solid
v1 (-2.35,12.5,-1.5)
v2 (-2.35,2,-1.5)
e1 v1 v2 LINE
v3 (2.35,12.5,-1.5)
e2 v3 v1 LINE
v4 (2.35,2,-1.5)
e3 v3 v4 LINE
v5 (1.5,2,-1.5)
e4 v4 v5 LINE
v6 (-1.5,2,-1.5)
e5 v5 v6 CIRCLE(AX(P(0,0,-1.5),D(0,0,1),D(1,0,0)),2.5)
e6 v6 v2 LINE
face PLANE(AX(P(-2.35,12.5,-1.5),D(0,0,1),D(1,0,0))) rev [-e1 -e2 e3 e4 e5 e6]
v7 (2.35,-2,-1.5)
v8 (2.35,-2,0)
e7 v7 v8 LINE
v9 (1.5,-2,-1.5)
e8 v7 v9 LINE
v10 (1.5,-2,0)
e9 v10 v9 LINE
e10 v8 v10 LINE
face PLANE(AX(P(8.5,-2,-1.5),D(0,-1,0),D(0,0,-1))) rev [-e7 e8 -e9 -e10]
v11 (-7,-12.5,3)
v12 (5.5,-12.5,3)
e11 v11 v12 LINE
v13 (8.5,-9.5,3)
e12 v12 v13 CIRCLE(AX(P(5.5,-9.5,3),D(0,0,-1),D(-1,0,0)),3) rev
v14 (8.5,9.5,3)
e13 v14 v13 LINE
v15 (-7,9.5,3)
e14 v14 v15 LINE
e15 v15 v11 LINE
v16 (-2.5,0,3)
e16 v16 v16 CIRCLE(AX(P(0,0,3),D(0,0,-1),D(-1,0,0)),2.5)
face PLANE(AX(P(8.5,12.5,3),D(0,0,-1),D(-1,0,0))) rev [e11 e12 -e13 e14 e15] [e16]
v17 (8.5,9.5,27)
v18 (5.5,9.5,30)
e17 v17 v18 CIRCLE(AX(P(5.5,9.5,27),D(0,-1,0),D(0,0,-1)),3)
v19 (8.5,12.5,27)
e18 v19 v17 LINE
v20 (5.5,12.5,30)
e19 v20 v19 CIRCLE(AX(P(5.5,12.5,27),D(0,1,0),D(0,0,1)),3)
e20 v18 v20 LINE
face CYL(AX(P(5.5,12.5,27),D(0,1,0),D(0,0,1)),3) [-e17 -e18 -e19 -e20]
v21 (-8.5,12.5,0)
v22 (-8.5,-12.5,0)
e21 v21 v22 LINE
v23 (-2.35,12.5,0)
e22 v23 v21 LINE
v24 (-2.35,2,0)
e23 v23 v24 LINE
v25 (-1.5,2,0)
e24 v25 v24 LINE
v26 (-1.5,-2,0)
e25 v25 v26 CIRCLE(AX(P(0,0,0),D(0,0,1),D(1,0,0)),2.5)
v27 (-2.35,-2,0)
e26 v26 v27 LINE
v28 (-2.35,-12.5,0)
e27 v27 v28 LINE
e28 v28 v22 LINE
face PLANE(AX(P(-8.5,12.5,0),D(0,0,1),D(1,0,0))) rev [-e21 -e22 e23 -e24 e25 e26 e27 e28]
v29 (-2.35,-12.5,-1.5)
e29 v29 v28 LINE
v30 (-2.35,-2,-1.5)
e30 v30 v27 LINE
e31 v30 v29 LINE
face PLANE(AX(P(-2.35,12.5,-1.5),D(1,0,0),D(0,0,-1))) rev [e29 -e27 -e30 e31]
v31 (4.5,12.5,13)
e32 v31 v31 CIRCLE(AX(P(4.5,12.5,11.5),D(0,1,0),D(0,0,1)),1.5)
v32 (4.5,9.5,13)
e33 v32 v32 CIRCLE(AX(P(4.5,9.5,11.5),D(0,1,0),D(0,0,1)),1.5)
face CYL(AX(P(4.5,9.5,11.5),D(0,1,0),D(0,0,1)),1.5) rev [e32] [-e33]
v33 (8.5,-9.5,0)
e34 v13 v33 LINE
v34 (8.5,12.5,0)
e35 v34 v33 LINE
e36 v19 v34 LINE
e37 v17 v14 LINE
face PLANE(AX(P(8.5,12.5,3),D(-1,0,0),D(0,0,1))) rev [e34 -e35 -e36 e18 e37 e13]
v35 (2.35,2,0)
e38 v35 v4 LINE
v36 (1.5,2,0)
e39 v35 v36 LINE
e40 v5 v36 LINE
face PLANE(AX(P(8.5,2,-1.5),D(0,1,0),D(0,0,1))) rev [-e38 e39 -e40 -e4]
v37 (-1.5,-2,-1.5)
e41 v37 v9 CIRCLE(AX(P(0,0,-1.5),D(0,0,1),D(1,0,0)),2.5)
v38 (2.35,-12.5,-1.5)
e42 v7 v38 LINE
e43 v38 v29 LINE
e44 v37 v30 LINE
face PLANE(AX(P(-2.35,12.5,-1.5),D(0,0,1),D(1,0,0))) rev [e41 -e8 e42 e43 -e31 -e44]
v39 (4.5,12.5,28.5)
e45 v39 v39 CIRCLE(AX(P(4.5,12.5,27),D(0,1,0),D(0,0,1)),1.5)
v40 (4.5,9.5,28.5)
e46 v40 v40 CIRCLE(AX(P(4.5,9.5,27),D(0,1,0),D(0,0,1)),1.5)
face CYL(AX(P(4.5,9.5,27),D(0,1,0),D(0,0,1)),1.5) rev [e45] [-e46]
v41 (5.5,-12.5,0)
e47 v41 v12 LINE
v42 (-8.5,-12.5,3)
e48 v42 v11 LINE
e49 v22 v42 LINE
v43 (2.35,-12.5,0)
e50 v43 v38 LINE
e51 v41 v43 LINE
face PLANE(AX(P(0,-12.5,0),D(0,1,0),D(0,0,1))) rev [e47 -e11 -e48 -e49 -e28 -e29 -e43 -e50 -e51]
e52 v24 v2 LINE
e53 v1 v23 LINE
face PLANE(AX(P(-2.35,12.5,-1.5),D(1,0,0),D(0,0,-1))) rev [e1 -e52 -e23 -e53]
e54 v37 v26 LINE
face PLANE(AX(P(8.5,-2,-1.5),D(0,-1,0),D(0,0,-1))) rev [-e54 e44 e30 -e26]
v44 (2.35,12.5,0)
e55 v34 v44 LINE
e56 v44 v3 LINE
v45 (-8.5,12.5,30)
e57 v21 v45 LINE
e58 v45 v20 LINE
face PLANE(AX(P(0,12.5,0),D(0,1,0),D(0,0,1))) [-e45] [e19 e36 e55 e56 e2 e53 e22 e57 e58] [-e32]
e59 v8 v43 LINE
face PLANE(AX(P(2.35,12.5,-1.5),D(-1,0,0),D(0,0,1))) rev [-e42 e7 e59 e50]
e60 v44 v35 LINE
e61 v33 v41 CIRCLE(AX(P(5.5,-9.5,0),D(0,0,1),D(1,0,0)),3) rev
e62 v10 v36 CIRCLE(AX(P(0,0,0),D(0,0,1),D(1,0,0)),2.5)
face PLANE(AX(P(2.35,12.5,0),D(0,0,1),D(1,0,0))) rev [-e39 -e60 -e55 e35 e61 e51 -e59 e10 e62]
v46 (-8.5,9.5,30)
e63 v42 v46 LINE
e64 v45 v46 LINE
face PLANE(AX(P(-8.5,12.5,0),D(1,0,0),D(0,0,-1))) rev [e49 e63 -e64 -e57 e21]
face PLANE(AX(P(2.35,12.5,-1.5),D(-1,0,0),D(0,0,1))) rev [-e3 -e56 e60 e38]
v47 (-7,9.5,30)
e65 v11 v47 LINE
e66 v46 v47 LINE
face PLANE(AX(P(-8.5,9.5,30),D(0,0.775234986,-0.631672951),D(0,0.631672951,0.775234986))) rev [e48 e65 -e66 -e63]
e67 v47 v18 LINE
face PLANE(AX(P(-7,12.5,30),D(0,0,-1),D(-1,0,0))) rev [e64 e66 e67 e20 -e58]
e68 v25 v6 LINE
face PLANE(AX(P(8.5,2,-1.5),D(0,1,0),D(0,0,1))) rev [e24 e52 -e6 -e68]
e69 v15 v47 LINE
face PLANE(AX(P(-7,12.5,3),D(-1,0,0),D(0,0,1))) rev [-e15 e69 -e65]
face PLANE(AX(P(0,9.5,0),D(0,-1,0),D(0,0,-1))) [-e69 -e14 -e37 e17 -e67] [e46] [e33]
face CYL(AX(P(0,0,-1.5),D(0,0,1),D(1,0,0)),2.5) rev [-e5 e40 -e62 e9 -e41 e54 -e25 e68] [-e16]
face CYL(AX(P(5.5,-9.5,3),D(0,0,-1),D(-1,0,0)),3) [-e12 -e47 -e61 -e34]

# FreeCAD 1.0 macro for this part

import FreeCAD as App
import Part
import Sketcher
Q = App.Units.Quantity


def edges_at(feature, points):
    """Names of the edges that pass closest to the given points."""
    edges = feature.Shape.Edges
    near = lambda p: min(range(len(edges)), key=lambda i: edges[i].distToShape(Part.Vertex(*p))[0])
    return sorted({f"Edge{near(p) + 1}" for p in points})


def add_polygon(sketch, points):
    """Adds a closed chain of lines whose ends are joined by coincident constraints."""
    first, n = sketch.GeometryCount, len(points)
    for a, b in zip(points, points[1:] + points[:1]):
        sketch.addGeometry(Part.LineSegment(App.Vector(*a, 0), App.Vector(*b, 0)), False)
    for i in range(n):
        sketch.addConstraint(Sketcher.Constraint("Coincident", first + i, 2, first + (i + 1) % n, 1))

doc = App.newDocument("Part")
body = doc.addObject("PartDesign::Body", "Body")

# Sketch on XZ plane
sketch1 = body.newObject("Sketcher::SketchObject", "Sketch")
sketch1.AttachmentSupport = (doc.getObject("XZ_Plane"), [""])
sketch1.MapMode = "FlatFace"
add_polygon(sketch1, [(8.5, 0), (2.4, 0), (2.4, -1.5), (-2.4, -1.5), (-2.4, 0), (-8.5, 0), (-8.5, 30), (-7, 30), (-7, 3), (8.5, 3)])  # lines 0-9
sketch1.addConstraint(Sketcher.Constraint("Horizontal", 0))
sketch1.addConstraint(Sketcher.Constraint("Vertical", 1))
sketch1.addConstraint(Sketcher.Constraint("Horizontal", 2))
sketch1.addConstraint(Sketcher.Constraint("Vertical", 3))
sketch1.addConstraint(Sketcher.Constraint("Horizontal", 4))
sketch1.addConstraint(Sketcher.Constraint("Vertical", 5))
sketch1.addConstraint(Sketcher.Constraint("Horizontal", 6))
sketch1.addConstraint(Sketcher.Constraint("Vertical", 7))
sketch1.addConstraint(Sketcher.Constraint("Horizontal", 8))
sketch1.addConstraint(Sketcher.Constraint("Vertical", 9))
sketch1.addConstraint(Sketcher.Constraint("Symmetric", 0, 2, 3, 2, -1, 1))
sketch1.addConstraint(Sketcher.Constraint("Symmetric", 4, 2, 9, 2, -2))
sketch1.addConstraint(Sketcher.Constraint("Equal", 6, 1))
sketch1.addConstraint(Sketcher.Constraint("DistanceY", 5, 1, 5, 2, Q("30 mm")))
sketch1.addConstraint(Sketcher.Constraint("DistanceY", 7, 2, 7, 1, Q("27 mm")))
sketch1.addConstraint(Sketcher.Constraint("DistanceX", 2, 2, 2, 1, Q("4.7 mm")))
sketch1.addConstraint(Sketcher.Constraint("DistanceX", 6, 1, 6, 2, Q("1.5 mm")))
sketch1.addConstraint(Sketcher.Constraint("DistanceX", 8, 1, 8, 2, Q("15.5 mm")))
pad1 = body.newObject("PartDesign::Pad", "Pad")
pad1.Profile = sketch1
pad1.Length = 25
pad1.Midplane = True

# Sketch on XY plane
sketch2 = body.newObject("Sketcher::SketchObject", "Sketch001")
sketch2.AttachmentSupport = (doc.getObject("XY_Plane"), [""])
sketch2.MapMode = "FlatFace"
sketch2.addGeometry(Part.Circle(App.Vector(0, 0, 0), App.Vector(0, 0, 1), 2.5), False)
sketch2.addConstraint(Sketcher.Constraint("Coincident", 0, 3, -1, 1))
sketch2.addConstraint(Sketcher.Constraint("Diameter", 0, Q("5 mm")))
pocket1 = body.newObject("PartDesign::Pocket", "Pocket")
pocket1.Profile = sketch2
pocket1.Type = "ThroughAll"
pocket1.Midplane = True

# Sketch on YZ plane
sketch3 = body.newObject("Sketcher::SketchObject", "Sketch002")
sketch3.AttachmentSupport = (doc.getObject("YZ_Plane"), [""])
sketch3.MapMode = "FlatFace"
sketch3.AttachmentOffset = App.Placement(App.Vector(0, 0, -2.35), App.Rotation())
add_polygon(sketch3, [(2, -1.5), (-2, -1.5), (-2, 0), (2, 0)])  # lines 0-3
sketch3.addConstraint(Sketcher.Constraint("Horizontal", 0))
sketch3.addConstraint(Sketcher.Constraint("Vertical", 1))
sketch3.addConstraint(Sketcher.Constraint("Horizontal", 2))
sketch3.addConstraint(Sketcher.Constraint("Vertical", 3))
sketch3.addConstraint(Sketcher.Constraint("Symmetric", 1, 2, 2, 2, -1, 1))
sketch3.addConstraint(Sketcher.Constraint("DistanceX", 0, 2, 0, 1, Q("4 mm")))
sketch3.addConstraint(Sketcher.Constraint("DistanceY", 1, 1, 1, 2, Q("1.5 mm")))
pocket2 = body.newObject("PartDesign::Pocket", "Pocket001")
pocket2.Profile = sketch3
pocket2.Type = "ThroughAll"
pocket2.Reversed = True

# Sketch on XZ plane
sketch4 = body.newObject("Sketcher::SketchObject", "Sketch003")
sketch4.AttachmentSupport = (doc.getObject("XZ_Plane"), [""])
sketch4.MapMode = "FlatFace"
sketch4.AttachmentOffset = App.Placement(App.Vector(0, 0, -12.5), App.Rotation())
add_polygon(sketch4, [(-8.5, 0), (-8.5, 30), (8.5, 30), (8.5, 0)])  # lines 0-3
sketch4.addGeometry(Part.Circle(App.Vector(4.5, 27, 0), App.Vector(0, 0, 1), 1.5), False)  # 4
sketch4.addGeometry(Part.Circle(App.Vector(4.5, 11.5, 0), App.Vector(0, 0, 1), 1.5), False)  # 5
sketch4.addConstraint(Sketcher.Constraint("Vertical", 0))
sketch4.addConstraint(Sketcher.Constraint("Horizontal", 1))
sketch4.addConstraint(Sketcher.Constraint("Vertical", 2))
sketch4.addConstraint(Sketcher.Constraint("Horizontal", 3))
sketch4.addConstraint(Sketcher.Constraint("Equal", 4, 5))
sketch4.addConstraint(Sketcher.Constraint("Symmetric", 2, 2, 3, 2, -1, 1))
sketch4.addConstraint(Sketcher.Constraint("Vertical", 4, 3, 5, 3))
sketch4.addConstraint(Sketcher.Constraint("Diameter", 4, Q("3 mm")))
sketch4.addConstraint(Sketcher.Constraint("DistanceX", 1, 1, 1, 2, Q("17 mm")))
sketch4.addConstraint(Sketcher.Constraint("DistanceY", 0, 1, 0, 2, Q("30 mm")))
sketch4.addConstraint(Sketcher.Constraint("DistanceY", -1, 1, 4, 3, Q("27 mm")))
sketch4.addConstraint(Sketcher.Constraint("DistanceX", 0, 2, 4, 3, Q("13 mm")))
sketch4.addConstraint(Sketcher.Constraint("DistanceY", -1, 1, 5, 3, Q("11.5 mm")))
pad2 = body.newObject("PartDesign::Pad", "Pad001")
pad2.Profile = sketch4
pad2.Length = 3

# Sketch on YZ plane
sketch5 = body.newObject("Sketcher::SketchObject", "Sketch004")
sketch5.AttachmentSupport = (doc.getObject("YZ_Plane"), [""])
sketch5.MapMode = "FlatFace"
sketch5.AttachmentOffset = App.Placement(App.Vector(0, 0, -7), App.Rotation())
add_polygon(sketch5, [(-12, 3), (10, 30), (-12, 30)])  # lines 0-2
sketch5.addConstraint(Sketcher.Constraint("Horizontal", 1))
sketch5.addConstraint(Sketcher.Constraint("Vertical", 2))
sketch5.addConstraint(Sketcher.Constraint("DistanceX", 1, 2, 1, 1, Q("22 mm")))
sketch5.addConstraint(Sketcher.Constraint("DistanceY", 2, 2, 2, 1, Q("27 mm")))
sketch5.addConstraint(Sketcher.Constraint("DistanceY", -1, 1, 0, 2, Q("30 mm")))
sketch5.addConstraint(Sketcher.Constraint("DistanceX", -1, 1, 0, 2, Q("9.5 mm")))
pocket3 = body.newObject("PartDesign::Pocket", "Pocket002")
pocket3.Profile = sketch5
pocket3.Type = "ThroughAll"
doc.recompute()

fillet = body.newObject("PartDesign::Fillet", "Fillet")
fillet.Base = (pocket3, edges_at(pocket3, [(8.5, -12.5, 1.5), (8.5, 11, 30)]))
fillet.Radius = 3

doc.recompute()
